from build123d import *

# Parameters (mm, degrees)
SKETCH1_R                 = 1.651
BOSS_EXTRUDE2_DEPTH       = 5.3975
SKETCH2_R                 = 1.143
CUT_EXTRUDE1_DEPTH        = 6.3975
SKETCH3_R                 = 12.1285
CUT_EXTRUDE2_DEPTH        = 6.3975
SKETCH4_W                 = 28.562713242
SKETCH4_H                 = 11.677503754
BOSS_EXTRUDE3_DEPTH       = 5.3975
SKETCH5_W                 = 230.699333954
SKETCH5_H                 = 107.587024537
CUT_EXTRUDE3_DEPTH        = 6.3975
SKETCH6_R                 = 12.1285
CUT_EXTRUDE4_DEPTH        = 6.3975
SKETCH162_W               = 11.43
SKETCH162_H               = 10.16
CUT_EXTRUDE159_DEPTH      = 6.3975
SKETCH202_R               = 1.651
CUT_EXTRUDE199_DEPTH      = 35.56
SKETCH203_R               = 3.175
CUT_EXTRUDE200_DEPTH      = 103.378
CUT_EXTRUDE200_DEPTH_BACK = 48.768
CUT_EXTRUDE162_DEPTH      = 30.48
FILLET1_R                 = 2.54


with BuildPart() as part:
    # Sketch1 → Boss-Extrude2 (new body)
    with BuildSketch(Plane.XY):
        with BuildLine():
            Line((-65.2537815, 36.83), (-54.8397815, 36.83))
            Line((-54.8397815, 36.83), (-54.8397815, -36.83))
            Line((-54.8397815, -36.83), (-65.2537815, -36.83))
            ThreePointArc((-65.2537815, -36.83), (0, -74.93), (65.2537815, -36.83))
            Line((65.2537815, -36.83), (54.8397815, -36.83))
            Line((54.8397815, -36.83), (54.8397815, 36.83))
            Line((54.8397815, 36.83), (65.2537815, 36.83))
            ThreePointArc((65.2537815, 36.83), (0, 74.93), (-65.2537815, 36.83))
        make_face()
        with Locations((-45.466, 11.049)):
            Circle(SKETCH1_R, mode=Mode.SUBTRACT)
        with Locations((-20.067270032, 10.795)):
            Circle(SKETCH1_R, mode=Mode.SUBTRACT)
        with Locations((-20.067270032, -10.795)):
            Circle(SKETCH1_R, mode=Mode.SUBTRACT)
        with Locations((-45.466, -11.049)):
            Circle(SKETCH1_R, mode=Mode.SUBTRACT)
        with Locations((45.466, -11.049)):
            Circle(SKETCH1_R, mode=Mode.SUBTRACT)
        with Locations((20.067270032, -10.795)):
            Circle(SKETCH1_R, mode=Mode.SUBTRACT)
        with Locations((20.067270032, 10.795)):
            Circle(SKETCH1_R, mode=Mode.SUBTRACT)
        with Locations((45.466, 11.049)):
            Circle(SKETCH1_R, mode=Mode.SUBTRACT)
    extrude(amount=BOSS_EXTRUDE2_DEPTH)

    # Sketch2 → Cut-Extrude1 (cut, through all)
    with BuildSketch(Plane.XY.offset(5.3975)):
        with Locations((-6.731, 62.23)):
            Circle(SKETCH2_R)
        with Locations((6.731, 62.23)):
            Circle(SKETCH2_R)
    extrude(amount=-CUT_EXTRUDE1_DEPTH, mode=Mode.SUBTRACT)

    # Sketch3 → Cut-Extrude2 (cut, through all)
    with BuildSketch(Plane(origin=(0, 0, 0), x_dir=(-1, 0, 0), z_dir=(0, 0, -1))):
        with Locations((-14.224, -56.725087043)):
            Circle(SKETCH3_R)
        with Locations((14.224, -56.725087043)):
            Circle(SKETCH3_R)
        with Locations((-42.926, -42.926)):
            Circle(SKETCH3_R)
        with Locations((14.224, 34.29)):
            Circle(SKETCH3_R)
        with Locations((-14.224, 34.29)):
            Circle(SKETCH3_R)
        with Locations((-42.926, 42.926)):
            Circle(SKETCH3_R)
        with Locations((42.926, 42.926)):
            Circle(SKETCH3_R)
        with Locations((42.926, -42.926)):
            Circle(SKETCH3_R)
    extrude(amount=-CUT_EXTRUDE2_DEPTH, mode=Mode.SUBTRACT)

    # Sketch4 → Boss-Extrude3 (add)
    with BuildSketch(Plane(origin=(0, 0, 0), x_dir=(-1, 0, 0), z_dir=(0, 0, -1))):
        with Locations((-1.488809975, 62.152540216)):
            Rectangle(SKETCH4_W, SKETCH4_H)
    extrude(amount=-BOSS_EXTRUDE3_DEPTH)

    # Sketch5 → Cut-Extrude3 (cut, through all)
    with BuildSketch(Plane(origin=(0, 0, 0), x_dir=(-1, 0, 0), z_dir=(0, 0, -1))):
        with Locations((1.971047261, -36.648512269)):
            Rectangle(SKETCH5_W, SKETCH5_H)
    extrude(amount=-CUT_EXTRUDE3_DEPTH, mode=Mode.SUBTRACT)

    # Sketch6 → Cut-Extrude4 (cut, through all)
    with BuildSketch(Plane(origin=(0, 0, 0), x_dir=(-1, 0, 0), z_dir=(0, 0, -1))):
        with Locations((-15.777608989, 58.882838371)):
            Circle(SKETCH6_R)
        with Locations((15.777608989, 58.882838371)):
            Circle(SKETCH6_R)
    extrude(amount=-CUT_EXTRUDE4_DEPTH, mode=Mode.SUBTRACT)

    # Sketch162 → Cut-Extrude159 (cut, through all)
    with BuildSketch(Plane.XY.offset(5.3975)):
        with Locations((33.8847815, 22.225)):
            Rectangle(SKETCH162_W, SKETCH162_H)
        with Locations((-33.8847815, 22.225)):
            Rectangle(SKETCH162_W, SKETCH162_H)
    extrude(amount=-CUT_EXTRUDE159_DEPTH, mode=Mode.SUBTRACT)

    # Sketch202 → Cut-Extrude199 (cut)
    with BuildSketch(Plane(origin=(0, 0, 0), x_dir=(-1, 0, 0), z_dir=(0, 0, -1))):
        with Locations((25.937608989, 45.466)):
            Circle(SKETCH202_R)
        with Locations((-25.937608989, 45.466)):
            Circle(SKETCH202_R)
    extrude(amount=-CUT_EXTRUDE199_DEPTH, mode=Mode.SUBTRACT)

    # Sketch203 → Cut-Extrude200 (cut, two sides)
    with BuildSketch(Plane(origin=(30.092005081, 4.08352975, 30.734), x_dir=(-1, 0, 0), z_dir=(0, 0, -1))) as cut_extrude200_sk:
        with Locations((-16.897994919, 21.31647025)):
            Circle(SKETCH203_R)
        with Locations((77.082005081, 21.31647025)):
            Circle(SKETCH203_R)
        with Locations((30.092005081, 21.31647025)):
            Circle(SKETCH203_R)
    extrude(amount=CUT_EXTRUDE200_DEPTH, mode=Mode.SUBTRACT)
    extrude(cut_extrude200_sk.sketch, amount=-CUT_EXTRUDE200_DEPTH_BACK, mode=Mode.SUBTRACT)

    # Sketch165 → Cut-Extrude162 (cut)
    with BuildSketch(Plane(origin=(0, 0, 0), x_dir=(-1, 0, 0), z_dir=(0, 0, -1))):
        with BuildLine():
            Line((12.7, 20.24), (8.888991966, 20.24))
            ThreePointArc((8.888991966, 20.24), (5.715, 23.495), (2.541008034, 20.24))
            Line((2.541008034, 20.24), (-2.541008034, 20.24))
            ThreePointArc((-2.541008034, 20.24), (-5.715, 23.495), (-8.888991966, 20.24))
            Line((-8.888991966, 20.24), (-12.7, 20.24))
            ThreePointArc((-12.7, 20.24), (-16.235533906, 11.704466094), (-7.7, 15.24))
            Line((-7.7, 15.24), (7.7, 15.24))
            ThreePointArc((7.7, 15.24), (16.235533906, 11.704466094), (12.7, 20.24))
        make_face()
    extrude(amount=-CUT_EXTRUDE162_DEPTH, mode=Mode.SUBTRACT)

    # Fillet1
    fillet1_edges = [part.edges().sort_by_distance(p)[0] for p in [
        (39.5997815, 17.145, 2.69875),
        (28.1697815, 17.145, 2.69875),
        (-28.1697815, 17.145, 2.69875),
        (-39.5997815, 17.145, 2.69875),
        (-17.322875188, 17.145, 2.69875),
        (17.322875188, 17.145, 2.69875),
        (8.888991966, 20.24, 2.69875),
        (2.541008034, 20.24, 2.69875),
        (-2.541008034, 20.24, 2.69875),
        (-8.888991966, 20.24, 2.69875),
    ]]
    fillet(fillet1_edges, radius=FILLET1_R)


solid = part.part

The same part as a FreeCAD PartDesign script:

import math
import FreeCAD as App
import Part
import Sketcher
Q = App.Units.Quantity


def edges_at(feature, points):
    """Names of the edges that pass closest to the given points."""
    edges = feature.Shape.Edges
    near = lambda p: min(range(len(edges)), key=lambda i: edges[i].distToShape(Part.Vertex(*p))[0])
    return sorted({f"Edge{near(p) + 1}" for p in points})

doc = App.newDocument("Part")
params = doc.addObject("Spreadsheet::Sheet", "Params")
for row, (alias, value) in enumerate([
    ("sketch1_diameter", "0.13 in"),
    ("sketch1_radius", "2.95 in"),
    ("sketch1_height", "2.9 in"),
    ("sketch1_width", "0.41 in"),
    ("pad1_length", "0.2125 in"),
    ("sketch2_diameter", "0.09 in"),
    ("sketch3_diameter", "0.955 in"),
    ("pad2_length", "0.2125 in"),
    ("sketch6_diameter", "0.955 in"),
    ("sketch7_height", "0.4 in"),
    ("sketch7_width", "0.45 in"),
    ("sketch8_diameter", "0.13 in"),
    ("pocket6_length", "1.4 in"),
    ("sketch9_diameter", "0.25 in"),
    ("sketch10_radius", "0.125 in"),
    ("pocket8_length", "1.2 in"),
    ("fillet_radius", "0.1 in"),
], start=1):
    params.set(f"A{row}", alias)
    params.set(f"B{row}", "=" + value)
    params.setAlias(f"B{row}", alias)

body = doc.addObject("PartDesign::Body", "Body")

sketch1 = doc.addObject("Sketcher::SketchObject", "Sketch")
body.addObject(sketch1)
sketch1.AttachmentSupport = (doc.XY_Plane, [""])
sketch1.MapMode = "FlatFace"
sketch1.addGeometry([
    Part.LineSegment(App.Vector(-65.3, 36.8, 0), App.Vector(-54.8, 36.8, 0)),
    Part.LineSegment(App.Vector(-54.8, 36.8, 0), App.Vector(-54.8, -36.8, 0)),
    Part.LineSegment(App.Vector(-54.8, -36.8, 0), App.Vector(-65.3, -36.8, 0)),
    Part.ArcOfCircle(Part.Circle(App.Vector(0, 0, 0), App.Vector(0, 0, 1), 74.9), math.radians(-151), math.radians(-29)),
    Part.LineSegment(App.Vector(65.3, -36.8, 0), App.Vector(54.8, -36.8, 0)),
    Part.LineSegment(App.Vector(54.8, -36.8, 0), App.Vector(54.8, 36.8, 0)),
    Part.LineSegment(App.Vector(54.8, 36.8, 0), App.Vector(65.3, 36.8, 0)),
    Part.ArcOfCircle(Part.Circle(App.Vector(0, 0, 0), App.Vector(0, 0, 1), 74.9), math.radians(29), math.radians(151)),
    Part.Circle(App.Vector(-45.5, -11, 0), App.Vector(0, 0, 1), 1.7),
    Part.Circle(App.Vector(-20.1, -10.8, 0), App.Vector(0, 0, 1), 1.7),
    Part.Circle(App.Vector(20.1, -10.8, 0), App.Vector(0, 0, 1), 1.7),
    Part.Circle(App.Vector(45.5, -11, 0), App.Vector(0, 0, 1), 1.7),
    Part.Circle(App.Vector(-45.5, 11, 0), App.Vector(0, 0, 1), 1.7),
    Part.Circle(App.Vector(-20.1, 10.8, 0), App.Vector(0, 0, 1), 1.7),
    Part.Circle(App.Vector(20.1, 10.8, 0), App.Vector(0, 0, 1), 1.7),
    Part.Circle(App.Vector(45.5, 11, 0), App.Vector(0, 0, 1), 1.7),
], False)
sketch1.addConstraint([
    Sketcher.Constraint("Coincident", 0, 2, 1, 1),
    Sketcher.Constraint("Coincident", 1, 2, 2, 1),
    Sketcher.Constraint("Coincident", 2, 2, 3, 1),
    Sketcher.Constraint("Coincident", 3, 2, 4, 1),
    Sketcher.Constraint("Coincident", 4, 2, 5, 1),
    Sketcher.Constraint("Coincident", 5, 2, 6, 1),
    Sketcher.Constraint("Coincident", 6, 2, 7, 1),
    Sketcher.Constraint("Coincident", 7, 2, 0, 1),
    Sketcher.Constraint("Horizontal", 0),
    Sketcher.Constraint("Vertical", 1),
    Sketcher.Constraint("Horizontal", 2),
    Sketcher.Constraint("Horizontal", 4),
    Sketcher.Constraint("Vertical", 5),
    Sketcher.Constraint("Horizontal", 6),
    Sketcher.Constraint("Coincident", 3, 3, -1, 1),
    Sketcher.Constraint("Coincident", 7, 3, -1, 1),
    Sketcher.Constraint("Equal", 3, 7),
    Sketcher.Constraint("Equal", 8, 9),
    Sketcher.Constraint("Equal", 9, 10),
    Sketcher.Constraint("Equal", 10, 11),
    Sketcher.Constraint("Equal", 11, 12),
    Sketcher.Constraint("Equal", 12, 13),
    Sketcher.Constraint("Equal", 13, 14),
    Sketcher.Constraint("Equal", 14, 15),
    Sketcher.Constraint("Symmetric", 11, 3, 12, 3, -1, 1),
    Sketcher.Constraint("Symmetric", 10, 3, 13, 3, -1, 1),
    Sketcher.Constraint("Symmetric", 9, 3, 14, 3, -1, 1),
    Sketcher.Constraint("Symmetric", 8, 3, 15, 3, -1, 1),
    Sketcher.Constraint("Symmetric", 0, 2, 4, 2, -1, 1),
    Sketcher.Constraint("Symmetric", 9, 3, 10, 3, -2),
    Sketcher.Constraint("Symmetric", 8, 3, 11, 3, -2),
    Sketcher.Constraint("Horizontal", 2, 2, 3, 2),
    Sketcher.Constraint("Horizontal", 0, 2, 5, 2),
    Sketcher.Constraint("Diameter", 8, Q("0.13 in")),
    Sketcher.Constraint("Radius", 3, Q("2.95 in")),
    Sketcher.Constraint("DistanceY", 1, 2, 1, 1, Q("2.9 in")),
    Sketcher.Constraint("DistanceX", 0, 1, 0, 2, Q("0.41 in")),
    Sketcher.Constraint("DistanceX", 8, 3, -1, 1, Q("1.79 in")),
    Sketcher.Constraint("DistanceY", 8, 3, 9, 3, Q("0.01 in")),
    Sketcher.Constraint("DistanceY", 8, 3, 12, 3, Q("0.87 in")),
    Sketcher.Constraint("DistanceX", 9, 3, 10, 3, Q("1.5801 in")),
])
sketch1.setExpression("Constraints[33]", "Params.sketch1_diameter")
sketch1.setExpression("Constraints[34]", "Params.sketch1_radius")
sketch1.setExpression("Constraints[35]", "Params.sketch1_height")
sketch1.setExpression("Constraints[36]", "Params.sketch1_width")
pad1 = doc.addObject("PartDesign::Pad", "Pad")
body.addObject(pad1)
pad1.Profile = sketch1
pad1.setExpression("Length", "Params.pad1_length")

sketch2 = doc.addObject("Sketcher::SketchObject", "Sketch001")
body.addObject(sketch2)
sketch2.AttachmentSupport = (doc.XY_Plane, [""])
sketch2.MapMode = "FlatFace"
sketch2.AttachmentOffset = App.Placement(App.Vector(0, 0, 0.2125 * 25.4), App.Rotation())
sketch2.addGeometry([
    Part.Circle(App.Vector(-6.7, 62.2, 0), App.Vector(0, 0, 1), 1.1),
    Part.Circle(App.Vector(6.7, 62.2, 0), App.Vector(0, 0, 1), 1.1),
], False)
sketch2.addConstraint([
    Sketcher.Constraint("Equal", 0, 1),
    Sketcher.Constraint("Symmetric", 0, 3, 1, 3, -2),
    Sketcher.Constraint("Diameter", 0, Q("0.09 in")),
    Sketcher.Constraint("DistanceY", -1, 1, 0, 3, Q("2.45 in")),
    Sketcher.Constraint("DistanceX", 0, 3, 1, 3, Q("0.53 in")),
])
sketch2.setExpression("Constraints[2]", "Params.sketch2_diameter")
pocket1 = doc.addObject("PartDesign::Pocket", "Pocket")
body.addObject(pocket1)
pocket1.Profile = sketch2
pocket1.Type = "ThroughAll"

sketch3 = doc.addObject("Sketcher::SketchObject", "Sketch002")
body.addObject(sketch3)
sketch3.AttachmentSupport = (doc.XY_Plane, [""])
sketch3.MapMode = "FlatFace"
sketch3.addGeometry([
    Part.Circle(App.Vector(14, -57, 0), App.Vector(0, 0, 1), 12),
    Part.Circle(App.Vector(-14, -57, 0), App.Vector(0, 0, 1), 12),
    Part.Circle(App.Vector(43, -43, 0), App.Vector(0, 0, 1), 12),
    Part.Circle(App.Vector(-14, 34, 0), App.Vector(0, 0, 1), 12),
    Part.Circle(App.Vector(14, 34, 0), App.Vector(0, 0, 1), 12),
    Part.Circle(App.Vector(43, 43, 0), App.Vector(0, 0, 1), 12),
    Part.Circle(App.Vector(-43, 43, 0), App.Vector(0, 0, 1), 12),
    Part.Circle(App.Vector(-43, -43, 0), App.Vector(0, 0, 1), 12),
], False)
sketch3.addConstraint([
    Sketcher.Constraint("Equal", 0, 1),
    Sketcher.Constraint("Equal", 1, 2),
    Sketcher.Constraint("Equal", 2, 3),
    Sketcher.Constraint("Equal", 3, 4),
    Sketcher.Constraint("Equal", 4, 5),
    Sketcher.Constraint("Equal", 5, 6),
    Sketcher.Constraint("Equal", 6, 7),
    Sketcher.Constraint("Symmetric", 2, 3, 6, 3, -1, 1),
    Sketcher.Constraint("Symmetric", 5, 3, 7, 3, -1, 1),
    Sketcher.Constraint("Symmetric", 0, 3, 1, 3, -2),
    Sketcher.Constraint("Symmetric", 3, 3, 4, 3, -2),
    Sketcher.Constraint("Symmetric", 5, 3, 6, 3, -2),
    Sketcher.Constraint("Vertical", 1, 3, 3, 3),
    Sketcher.Constraint("Diameter", 0, Q("0.955 in")),
    Sketcher.Constraint("DistanceX", -1, 1, 0, 3, Q("0.56 in")),
    Sketcher.Constraint("DistanceX", -1, 1, 2, 3, Q("1.69 in")),
    Sketcher.Constraint("DistanceY", 2, 3, -1, 1, Q("1.69 in")),
    Sketcher.Constraint("DistanceY", -1, 1, 3, 3, Q("1.35 in")),
    Sketcher.Constraint("DistanceY", 0, 3, -1, 1, 56.725087),
])
sketch3.setExpression("Constraints[13]", "Params.sketch3_diameter")
pocket2 = doc.addObject("PartDesign::Pocket", "Pocket001")
body.addObject(pocket2)
pocket2.Profile = sketch3
pocket2.Type = "ThroughAll"
pocket2.Reversed = True

sketch4 = doc.addObject("Sketcher::SketchObject", "Sketch003")
body.addObject(sketch4)
sketch4.AttachmentSupport = (doc.XY_Plane, [""])
sketch4.MapMode = "FlatFace"
sketch4.addGeometry([
    Part.LineSegment(App.Vector(16, 68, 0), App.Vector(16, 56, 0)),
    Part.LineSegment(App.Vector(16, 56, 0), App.Vector(-13, 56, 0)),
    Part.LineSegment(App.Vector(-13, 56, 0), App.Vector(-13, 68, 0)),
    Part.LineSegment(App.Vector(-13, 68, 0), App.Vector(16, 68, 0)),
], False)
sketch4.addConstraint([
    Sketcher.Constraint("Coincident", 0, 2, 1, 1),
    Sketcher.Constraint("Coincident", 1, 2, 2, 1),
    Sketcher.Constraint("Coincident", 2, 2, 3, 1),
    Sketcher.Constraint("Coincident", 3, 2, 0, 1),
    Sketcher.Constraint("Vertical", 0),
    Sketcher.Constraint("Horizontal", 1),
    Sketcher.Constraint("Vertical", 2),
    Sketcher.Constraint("Horizontal", 3),
    Sketcher.Constraint("DistanceX", 1, 2, 1, 1, 28.562713),
    Sketcher.Constraint("DistanceY", 0, 2, 0, 1, 11.677504),
    Sketcher.Constraint("DistanceY", -1, 1, 0, 2, 56.313788),
    Sketcher.Constraint("DistanceX", -1, 1, 0, 2, 15.770167),
])
pad2 = doc.addObject("PartDesign::Pad", "Pad001")
body.addObject(pad2)
pad2.Profile = sketch4
pad2.setExpression("Length", "Params.pad2_length")

sketch5 = doc.addObject("Sketcher::SketchObject", "Sketch004")
body.addObject(sketch5)
sketch5.AttachmentSupport = (doc.XY_Plane, [""])
sketch5.MapMode = "FlatFace"
sketch5.addGeometry([
    Part.LineSegment(App.Vector(113, 17, 0), App.Vector(113, -90, 0)),
    Part.LineSegment(App.Vector(113, -90, 0), App.Vector(-117, -90, 0)),
    Part.LineSegment(App.Vector(-117, -90, 0), App.Vector(-117, 17, 0)),
    Part.LineSegment(App.Vector(-117, 17, 0), App.Vector(113, 17, 0)),
], False)
sketch5.addConstraint([
    Sketcher.Constraint("Coincident", 0, 2, 1, 1),
    Sketcher.Constraint("Coincident", 1, 2, 2, 1),
    Sketcher.Constraint("Coincident", 2, 2, 3, 1),
    Sketcher.Constraint("Coincident", 3, 2, 0, 1),
    Sketcher.Constraint("Vertical", 0),
    Sketcher.Constraint("Horizontal", 1),
    Sketcher.Constraint("Vertical", 2),
    Sketcher.Constraint("Horizontal", 3),
    Sketcher.Constraint("DistanceY", -1, 1, 2, 2, Q("0.675 in")),
    Sketcher.Constraint("DistanceX", 1, 2, 1, 1, 230.699334),
    Sketcher.Constraint("DistanceY", 0, 2, 0, 1, 107.587025),
    Sketcher.Constraint("DistanceX", -1, 1, 0, 2, 113.37862),
])
pocket3 = doc.addObject("PartDesign::Pocket", "Pocket002")
body.addObject(pocket3)
pocket3.Profile = sketch5
pocket3.Type = "ThroughAll"
pocket3.Reversed = True

sketch6 = doc.addObject("Sketcher::SketchObject", "Sketch005")
body.addObject(sketch6)
sketch6.AttachmentSupport = (doc.XY_Plane, [""])
sketch6.MapMode = "FlatFace"
sketch6.addGeometry([
    Part.Circle(App.Vector(16, 59, 0), App.Vector(0, 0, 1), 12),
    Part.Circle(App.Vector(-16, 59, 0), App.Vector(0, 0, 1), 12),
], False)
sketch6.addConstraint([
    Sketcher.Constraint("Equal", 0, 1),
    Sketcher.Constraint("Symmetric", 0, 3, 1, 3, -2),
    Sketcher.Constraint("Diameter", 0, Q("0.955 in")),
    Sketcher.Constraint("DistanceX", -1, 1, 0, 3, 15.777609),
    Sketcher.Constraint("DistanceY", -1, 1, 0, 3, 58.882838),
])
sketch6.setExpression("Constraints[2]", "Params.sketch6_diameter")
pocket4 = doc.addObject("PartDesign::Pocket", "Pocket003")
body.addObject(pocket4)
pocket4.Profile = sketch6
pocket4.Type = "ThroughAll"
pocket4.Reversed = True

sketch7 = doc.addObject("Sketcher::SketchObject", "Sketch006")
body.addObject(sketch7)
sketch7.AttachmentSupport = (doc.XY_Plane, [""])
sketch7.MapMode = "FlatFace"
sketch7.AttachmentOffset = App.Placement(App.Vector(0, 0, 0.2125 * 25.4), App.Rotation())
sketch7.addGeometry([
    Part.LineSegment(App.Vector(28, 27, 0), App.Vector(28, 17, 0)),
    Part.LineSegment(App.Vector(28, 17, 0), App.Vector(40, 17, 0)),
    Part.LineSegment(App.Vector(40, 17, 0), App.Vector(40, 27, 0)),
    Part.LineSegment(App.Vector(40, 27, 0), App.Vector(28, 27, 0)),
    Part.LineSegment(App.Vector(-40, 27, 0), App.Vector(-40, 17, 0)),
    Part.LineSegment(App.Vector(-40, 17, 0), App.Vector(-28, 17, 0)),
    Part.LineSegment(App.Vector(-28, 17, 0), App.Vector(-28, 27, 0)),
    Part.LineSegment(App.Vector(-28, 27, 0), App.Vector(-40, 27, 0)),
], False)
sketch7.addConstraint([
    Sketcher.Constraint("Coincident", 0, 2, 1, 1),
    Sketcher.Constraint("Coincident", 1, 2, 2, 1),
    Sketcher.Constraint("Coincident", 2, 2, 3, 1),
    Sketcher.Constraint("Coincident", 3, 2, 0, 1),
    Sketcher.Constraint("Coincident", 4, 2, 5, 1),
    Sketcher.Constraint("Coincident", 5, 2, 6, 1),
    Sketcher.Constraint("Coincident", 6, 2, 7, 1),
    Sketcher.Constraint("Coincident", 7, 2, 4, 1),
    Sketcher.Constraint("Vertical", 0),
    Sketcher.Constraint("Horizontal", 1),
    Sketcher.Constraint("Vertical", 2),
    Sketcher.Constraint("Horizontal", 3),
    Sketcher.Constraint("Vertical", 4),
    Sketcher.Constraint("Horizontal", 5),
    Sketcher.Constraint("Vertical", 6),
    Sketcher.Constraint("Horizontal", 7),
    Sketcher.Constraint("Symmetric", 1, 2, 4, 2, -2),
    Sketcher.Constraint("Symmetric", 3, 2, 6, 2, -2),
    Sketcher.Constraint("DistanceY", 0, 2, 0, 1, Q("0.4 in")),
    Sketcher.Constraint("DistanceX", 1, 1, 1, 2, Q("0.45 in")),
    Sketcher.Constraint("DistanceY", -1, 1, 0, 2, Q("0.675 in")),
    Sketcher.Constraint("DistanceX", -1, 1, 0, 2, 28.169781),
])
sketch7.setExpression("Constraints[18]", "Params.sketch7_height")
sketch7.setExpression("Constraints[19]", "Params.sketch7_width")
pocket5 = doc.addObject("PartDesign::Pocket", "Pocket004")
body.addObject(pocket5)
pocket5.Profile = sketch7
pocket5.Type = "ThroughAll"

sketch8 = doc.addObject("Sketcher::SketchObject", "Sketch007")
body.addObject(sketch8)
sketch8.AttachmentSupport = (doc.XY_Plane, [""])
sketch8.MapMode = "FlatFace"
sketch8.addGeometry([
    Part.Circle(App.Vector(-25.9, 45.5, 0), App.Vector(0, 0, 1), 1.7),
    Part.Circle(App.Vector(25.9, 45.5, 0), App.Vector(0, 0, 1), 1.7),
], False)
sketch8.addConstraint([
    Sketcher.Constraint("Equal", 0, 1),
    Sketcher.Constraint("Symmetric", 0, 3, 1, 3, -2),
    Sketcher.Constraint("Diameter", 0, Q("0.13 in")),
    Sketcher.Constraint("DistanceY", -1, 1, 0, 3, Q("1.79 in")),
    Sketcher.Constraint("DistanceX", 0, 3, -1, 1, 25.937609),
])
sketch8.setExpression("Constraints[2]", "Params.sketch8_diameter")
pocket6 = doc.addObject("PartDesign::Pocket", "Pocket005")
body.addObject(pocket6)
pocket6.Profile = sketch8
pocket6.setExpression("Length", "Params.pocket6_length")
pocket6.Reversed = True

sketch9 = doc.addObject("Sketcher::SketchObject", "Sketch008")
body.addObject(sketch9)
sketch9.AttachmentSupport = (doc.XY_Plane, [""])
sketch9.MapMode = "FlatFace"
sketch9.AttachmentOffset = App.Placement(App.Vector(0, 0, 1.21 * 25.4), App.Rotation())
sketch9.addGeometry([
    Part.Circle(App.Vector(47, 25.4, 0), App.Vector(0, 0, 1), 3.2),
    Part.Circle(App.Vector(-47, 25.4, 0), App.Vector(0, 0, 1), 3.2),
    Part.Circle(App.Vector(0, 25.4, 0), App.Vector(0, 0, 1), 3.2),
], False)
sketch9.addConstraint([
    Sketcher.Constraint("Equal", 0, 1),
    Sketcher.Constraint("Equal", 1, 2),
    Sketcher.Constraint("Symmetric", 0, 3, 1, 3, -2),
    Sketcher.Constraint("PointOnObject", 2, 3, -2),
    Sketcher.Constraint("Horizontal", 1, 3, 2, 3),
    Sketcher.Constraint("Diameter", 0, Q("0.25 in")),
    Sketcher.Constraint("DistanceY", -1, 1, 0, 3, Q("1 in")),
    Sketcher.Constraint("DistanceX", 1, 3, 0, 3, Q("3.7 in")),
])
sketch9.setExpression("Constraints[5]", "Params.sketch9_diameter")
pocket7 = doc.addObject("PartDesign::Pocket", "Pocket006")
body.addObject(pocket7)
pocket7.Profile = sketch9
pocket7.Type = "ThroughAll"
pocket7.Midplane = True

sketch10 = doc.addObject("Sketcher::SketchObject", "Sketch009")
body.addObject(sketch10)
sketch10.AttachmentSupport = (doc.XY_Plane, [""])
sketch10.MapMode = "FlatFace"
sketch10.addGeometry([
    Part.LineSegment(App.Vector(-12.7, 20.2, 0), App.Vector(-8.9, 20.2, 0)),
    Part.ArcOfCircle(Part.Circle(App.Vector(-5.7, 20.3, 0), App.Vector(0, 0, 1), 3.2), math.radians(-1), math.radians(181)),
    Part.LineSegment(App.Vector(-2.5, 20.2, 0), App.Vector(2.5, 20.2, 0)),
    Part.ArcOfCircle(Part.Circle(App.Vector(5.7, 20.3, 0), App.Vector(0, 0, 1), 3.2), math.radians(-1), math.radians(181)),
    Part.LineSegment(App.Vector(8.9, 20.2, 0), App.Vector(12.7, 20.2, 0)),
    Part.ArcOfCircle(Part.Circle(App.Vector(12.7, 15.2, 0), App.Vector(0, 0, 1), 5), math.radians(180), math.radians(450)),
    Part.LineSegment(App.Vector(7.7, 15.2, 0), App.Vector(-7.7, 15.2, 0)),
    Part.ArcOfCircle(Part.Circle(App.Vector(-12.7, 15.2, 0), App.Vector(0, 0, 1), 5), math.radians(90), math.radians(360)),
], False)
sketch10.addConstraint([
    Sketcher.Constraint("Coincident", 0, 2, 1, 2),
    Sketcher.Constraint("Coincident", 1, 1, 2, 1),
    Sketcher.Constraint("Coincident", 2, 2, 3, 2),
    Sketcher.Constraint("Coincident", 3, 1, 4, 1),
    Sketcher.Constraint("Tangent", 4, 2, 5, 2),
    Sketcher.Constraint("Coincident", 5, 1, 6, 1),
    Sketcher.Constraint("Coincident", 6, 2, 7, 2),
    Sketcher.Constraint("Tangent", 7, 1, 0, 1),
    Sketcher.Constraint("Horizontal", 0),
    Sketcher.Constraint("Horizontal", 2),
    Sketcher.Constraint("Horizontal", 4),
    Sketcher.Constraint("Horizontal", 6),
    Sketcher.Constraint("Equal", 1, 3),
    Sketcher.Constraint("Equal", 5, 7),
    Sketcher.Constraint("Symmetric", 1, 3, 3, 3, -2),
    Sketcher.Constraint("Symmetric", 5, 3, 7, 3, -2),
    Sketcher.Constraint("Horizontal", 0, 2, 1, 1),
    Sketcher.Constraint("Horizontal", 7, 3, 5, 1),
    Sketcher.Constraint("Radius", 1, Q("0.125 in")),
    Sketcher.Constraint("DistanceX", 7, 3, 5, 3, Q("1 in")),
    Sketcher.Constraint("DistanceY", -1, 1, 1, 3, Q("0.8 in")),
    Sketcher.Constraint("DistanceY", -1, 1, 5, 3, Q("0.6 in")),
    Sketcher.Constraint("Radius", 5, 5.0),
    Sketcher.Constraint("DistanceX", 1, 3, 3, 3, Q("0.45 in")),
])
sketch10.setExpression("Constraints[18]", "Params.sketch10_radius")
pocket8 = doc.addObject("PartDesign::Pocket", "Pocket007")
body.addObject(pocket8)
pocket8.Profile = sketch10
pocket8.setExpression("Length", "Params.pocket8_length")
pocket8.Reversed = True
doc.recompute()

fillet = doc.addObject("PartDesign::Fillet", "Fillet")
body.addObject(fillet)
fillet.Base = (pocket8, edges_at(pocket8, [
    (39.6, 17.145, 2.699),
    (28.17, 17.145, 2.699),
    (-28.17, 17.145, 2.699),
    (-39.6, 17.145, 2.699),
    (-17.323, 17.145, 2.699),
    (17.323, 17.145, 2.699),
    (8.889, 20.24, 2.699),
    (2.541, 20.24, 2.699),
    (-2.541, 20.24, 2.699),
    (-8.889, 20.24, 2.699),
]))
fillet.setExpression("Radius", "Params.fillet_radius")

doc.recompute()
